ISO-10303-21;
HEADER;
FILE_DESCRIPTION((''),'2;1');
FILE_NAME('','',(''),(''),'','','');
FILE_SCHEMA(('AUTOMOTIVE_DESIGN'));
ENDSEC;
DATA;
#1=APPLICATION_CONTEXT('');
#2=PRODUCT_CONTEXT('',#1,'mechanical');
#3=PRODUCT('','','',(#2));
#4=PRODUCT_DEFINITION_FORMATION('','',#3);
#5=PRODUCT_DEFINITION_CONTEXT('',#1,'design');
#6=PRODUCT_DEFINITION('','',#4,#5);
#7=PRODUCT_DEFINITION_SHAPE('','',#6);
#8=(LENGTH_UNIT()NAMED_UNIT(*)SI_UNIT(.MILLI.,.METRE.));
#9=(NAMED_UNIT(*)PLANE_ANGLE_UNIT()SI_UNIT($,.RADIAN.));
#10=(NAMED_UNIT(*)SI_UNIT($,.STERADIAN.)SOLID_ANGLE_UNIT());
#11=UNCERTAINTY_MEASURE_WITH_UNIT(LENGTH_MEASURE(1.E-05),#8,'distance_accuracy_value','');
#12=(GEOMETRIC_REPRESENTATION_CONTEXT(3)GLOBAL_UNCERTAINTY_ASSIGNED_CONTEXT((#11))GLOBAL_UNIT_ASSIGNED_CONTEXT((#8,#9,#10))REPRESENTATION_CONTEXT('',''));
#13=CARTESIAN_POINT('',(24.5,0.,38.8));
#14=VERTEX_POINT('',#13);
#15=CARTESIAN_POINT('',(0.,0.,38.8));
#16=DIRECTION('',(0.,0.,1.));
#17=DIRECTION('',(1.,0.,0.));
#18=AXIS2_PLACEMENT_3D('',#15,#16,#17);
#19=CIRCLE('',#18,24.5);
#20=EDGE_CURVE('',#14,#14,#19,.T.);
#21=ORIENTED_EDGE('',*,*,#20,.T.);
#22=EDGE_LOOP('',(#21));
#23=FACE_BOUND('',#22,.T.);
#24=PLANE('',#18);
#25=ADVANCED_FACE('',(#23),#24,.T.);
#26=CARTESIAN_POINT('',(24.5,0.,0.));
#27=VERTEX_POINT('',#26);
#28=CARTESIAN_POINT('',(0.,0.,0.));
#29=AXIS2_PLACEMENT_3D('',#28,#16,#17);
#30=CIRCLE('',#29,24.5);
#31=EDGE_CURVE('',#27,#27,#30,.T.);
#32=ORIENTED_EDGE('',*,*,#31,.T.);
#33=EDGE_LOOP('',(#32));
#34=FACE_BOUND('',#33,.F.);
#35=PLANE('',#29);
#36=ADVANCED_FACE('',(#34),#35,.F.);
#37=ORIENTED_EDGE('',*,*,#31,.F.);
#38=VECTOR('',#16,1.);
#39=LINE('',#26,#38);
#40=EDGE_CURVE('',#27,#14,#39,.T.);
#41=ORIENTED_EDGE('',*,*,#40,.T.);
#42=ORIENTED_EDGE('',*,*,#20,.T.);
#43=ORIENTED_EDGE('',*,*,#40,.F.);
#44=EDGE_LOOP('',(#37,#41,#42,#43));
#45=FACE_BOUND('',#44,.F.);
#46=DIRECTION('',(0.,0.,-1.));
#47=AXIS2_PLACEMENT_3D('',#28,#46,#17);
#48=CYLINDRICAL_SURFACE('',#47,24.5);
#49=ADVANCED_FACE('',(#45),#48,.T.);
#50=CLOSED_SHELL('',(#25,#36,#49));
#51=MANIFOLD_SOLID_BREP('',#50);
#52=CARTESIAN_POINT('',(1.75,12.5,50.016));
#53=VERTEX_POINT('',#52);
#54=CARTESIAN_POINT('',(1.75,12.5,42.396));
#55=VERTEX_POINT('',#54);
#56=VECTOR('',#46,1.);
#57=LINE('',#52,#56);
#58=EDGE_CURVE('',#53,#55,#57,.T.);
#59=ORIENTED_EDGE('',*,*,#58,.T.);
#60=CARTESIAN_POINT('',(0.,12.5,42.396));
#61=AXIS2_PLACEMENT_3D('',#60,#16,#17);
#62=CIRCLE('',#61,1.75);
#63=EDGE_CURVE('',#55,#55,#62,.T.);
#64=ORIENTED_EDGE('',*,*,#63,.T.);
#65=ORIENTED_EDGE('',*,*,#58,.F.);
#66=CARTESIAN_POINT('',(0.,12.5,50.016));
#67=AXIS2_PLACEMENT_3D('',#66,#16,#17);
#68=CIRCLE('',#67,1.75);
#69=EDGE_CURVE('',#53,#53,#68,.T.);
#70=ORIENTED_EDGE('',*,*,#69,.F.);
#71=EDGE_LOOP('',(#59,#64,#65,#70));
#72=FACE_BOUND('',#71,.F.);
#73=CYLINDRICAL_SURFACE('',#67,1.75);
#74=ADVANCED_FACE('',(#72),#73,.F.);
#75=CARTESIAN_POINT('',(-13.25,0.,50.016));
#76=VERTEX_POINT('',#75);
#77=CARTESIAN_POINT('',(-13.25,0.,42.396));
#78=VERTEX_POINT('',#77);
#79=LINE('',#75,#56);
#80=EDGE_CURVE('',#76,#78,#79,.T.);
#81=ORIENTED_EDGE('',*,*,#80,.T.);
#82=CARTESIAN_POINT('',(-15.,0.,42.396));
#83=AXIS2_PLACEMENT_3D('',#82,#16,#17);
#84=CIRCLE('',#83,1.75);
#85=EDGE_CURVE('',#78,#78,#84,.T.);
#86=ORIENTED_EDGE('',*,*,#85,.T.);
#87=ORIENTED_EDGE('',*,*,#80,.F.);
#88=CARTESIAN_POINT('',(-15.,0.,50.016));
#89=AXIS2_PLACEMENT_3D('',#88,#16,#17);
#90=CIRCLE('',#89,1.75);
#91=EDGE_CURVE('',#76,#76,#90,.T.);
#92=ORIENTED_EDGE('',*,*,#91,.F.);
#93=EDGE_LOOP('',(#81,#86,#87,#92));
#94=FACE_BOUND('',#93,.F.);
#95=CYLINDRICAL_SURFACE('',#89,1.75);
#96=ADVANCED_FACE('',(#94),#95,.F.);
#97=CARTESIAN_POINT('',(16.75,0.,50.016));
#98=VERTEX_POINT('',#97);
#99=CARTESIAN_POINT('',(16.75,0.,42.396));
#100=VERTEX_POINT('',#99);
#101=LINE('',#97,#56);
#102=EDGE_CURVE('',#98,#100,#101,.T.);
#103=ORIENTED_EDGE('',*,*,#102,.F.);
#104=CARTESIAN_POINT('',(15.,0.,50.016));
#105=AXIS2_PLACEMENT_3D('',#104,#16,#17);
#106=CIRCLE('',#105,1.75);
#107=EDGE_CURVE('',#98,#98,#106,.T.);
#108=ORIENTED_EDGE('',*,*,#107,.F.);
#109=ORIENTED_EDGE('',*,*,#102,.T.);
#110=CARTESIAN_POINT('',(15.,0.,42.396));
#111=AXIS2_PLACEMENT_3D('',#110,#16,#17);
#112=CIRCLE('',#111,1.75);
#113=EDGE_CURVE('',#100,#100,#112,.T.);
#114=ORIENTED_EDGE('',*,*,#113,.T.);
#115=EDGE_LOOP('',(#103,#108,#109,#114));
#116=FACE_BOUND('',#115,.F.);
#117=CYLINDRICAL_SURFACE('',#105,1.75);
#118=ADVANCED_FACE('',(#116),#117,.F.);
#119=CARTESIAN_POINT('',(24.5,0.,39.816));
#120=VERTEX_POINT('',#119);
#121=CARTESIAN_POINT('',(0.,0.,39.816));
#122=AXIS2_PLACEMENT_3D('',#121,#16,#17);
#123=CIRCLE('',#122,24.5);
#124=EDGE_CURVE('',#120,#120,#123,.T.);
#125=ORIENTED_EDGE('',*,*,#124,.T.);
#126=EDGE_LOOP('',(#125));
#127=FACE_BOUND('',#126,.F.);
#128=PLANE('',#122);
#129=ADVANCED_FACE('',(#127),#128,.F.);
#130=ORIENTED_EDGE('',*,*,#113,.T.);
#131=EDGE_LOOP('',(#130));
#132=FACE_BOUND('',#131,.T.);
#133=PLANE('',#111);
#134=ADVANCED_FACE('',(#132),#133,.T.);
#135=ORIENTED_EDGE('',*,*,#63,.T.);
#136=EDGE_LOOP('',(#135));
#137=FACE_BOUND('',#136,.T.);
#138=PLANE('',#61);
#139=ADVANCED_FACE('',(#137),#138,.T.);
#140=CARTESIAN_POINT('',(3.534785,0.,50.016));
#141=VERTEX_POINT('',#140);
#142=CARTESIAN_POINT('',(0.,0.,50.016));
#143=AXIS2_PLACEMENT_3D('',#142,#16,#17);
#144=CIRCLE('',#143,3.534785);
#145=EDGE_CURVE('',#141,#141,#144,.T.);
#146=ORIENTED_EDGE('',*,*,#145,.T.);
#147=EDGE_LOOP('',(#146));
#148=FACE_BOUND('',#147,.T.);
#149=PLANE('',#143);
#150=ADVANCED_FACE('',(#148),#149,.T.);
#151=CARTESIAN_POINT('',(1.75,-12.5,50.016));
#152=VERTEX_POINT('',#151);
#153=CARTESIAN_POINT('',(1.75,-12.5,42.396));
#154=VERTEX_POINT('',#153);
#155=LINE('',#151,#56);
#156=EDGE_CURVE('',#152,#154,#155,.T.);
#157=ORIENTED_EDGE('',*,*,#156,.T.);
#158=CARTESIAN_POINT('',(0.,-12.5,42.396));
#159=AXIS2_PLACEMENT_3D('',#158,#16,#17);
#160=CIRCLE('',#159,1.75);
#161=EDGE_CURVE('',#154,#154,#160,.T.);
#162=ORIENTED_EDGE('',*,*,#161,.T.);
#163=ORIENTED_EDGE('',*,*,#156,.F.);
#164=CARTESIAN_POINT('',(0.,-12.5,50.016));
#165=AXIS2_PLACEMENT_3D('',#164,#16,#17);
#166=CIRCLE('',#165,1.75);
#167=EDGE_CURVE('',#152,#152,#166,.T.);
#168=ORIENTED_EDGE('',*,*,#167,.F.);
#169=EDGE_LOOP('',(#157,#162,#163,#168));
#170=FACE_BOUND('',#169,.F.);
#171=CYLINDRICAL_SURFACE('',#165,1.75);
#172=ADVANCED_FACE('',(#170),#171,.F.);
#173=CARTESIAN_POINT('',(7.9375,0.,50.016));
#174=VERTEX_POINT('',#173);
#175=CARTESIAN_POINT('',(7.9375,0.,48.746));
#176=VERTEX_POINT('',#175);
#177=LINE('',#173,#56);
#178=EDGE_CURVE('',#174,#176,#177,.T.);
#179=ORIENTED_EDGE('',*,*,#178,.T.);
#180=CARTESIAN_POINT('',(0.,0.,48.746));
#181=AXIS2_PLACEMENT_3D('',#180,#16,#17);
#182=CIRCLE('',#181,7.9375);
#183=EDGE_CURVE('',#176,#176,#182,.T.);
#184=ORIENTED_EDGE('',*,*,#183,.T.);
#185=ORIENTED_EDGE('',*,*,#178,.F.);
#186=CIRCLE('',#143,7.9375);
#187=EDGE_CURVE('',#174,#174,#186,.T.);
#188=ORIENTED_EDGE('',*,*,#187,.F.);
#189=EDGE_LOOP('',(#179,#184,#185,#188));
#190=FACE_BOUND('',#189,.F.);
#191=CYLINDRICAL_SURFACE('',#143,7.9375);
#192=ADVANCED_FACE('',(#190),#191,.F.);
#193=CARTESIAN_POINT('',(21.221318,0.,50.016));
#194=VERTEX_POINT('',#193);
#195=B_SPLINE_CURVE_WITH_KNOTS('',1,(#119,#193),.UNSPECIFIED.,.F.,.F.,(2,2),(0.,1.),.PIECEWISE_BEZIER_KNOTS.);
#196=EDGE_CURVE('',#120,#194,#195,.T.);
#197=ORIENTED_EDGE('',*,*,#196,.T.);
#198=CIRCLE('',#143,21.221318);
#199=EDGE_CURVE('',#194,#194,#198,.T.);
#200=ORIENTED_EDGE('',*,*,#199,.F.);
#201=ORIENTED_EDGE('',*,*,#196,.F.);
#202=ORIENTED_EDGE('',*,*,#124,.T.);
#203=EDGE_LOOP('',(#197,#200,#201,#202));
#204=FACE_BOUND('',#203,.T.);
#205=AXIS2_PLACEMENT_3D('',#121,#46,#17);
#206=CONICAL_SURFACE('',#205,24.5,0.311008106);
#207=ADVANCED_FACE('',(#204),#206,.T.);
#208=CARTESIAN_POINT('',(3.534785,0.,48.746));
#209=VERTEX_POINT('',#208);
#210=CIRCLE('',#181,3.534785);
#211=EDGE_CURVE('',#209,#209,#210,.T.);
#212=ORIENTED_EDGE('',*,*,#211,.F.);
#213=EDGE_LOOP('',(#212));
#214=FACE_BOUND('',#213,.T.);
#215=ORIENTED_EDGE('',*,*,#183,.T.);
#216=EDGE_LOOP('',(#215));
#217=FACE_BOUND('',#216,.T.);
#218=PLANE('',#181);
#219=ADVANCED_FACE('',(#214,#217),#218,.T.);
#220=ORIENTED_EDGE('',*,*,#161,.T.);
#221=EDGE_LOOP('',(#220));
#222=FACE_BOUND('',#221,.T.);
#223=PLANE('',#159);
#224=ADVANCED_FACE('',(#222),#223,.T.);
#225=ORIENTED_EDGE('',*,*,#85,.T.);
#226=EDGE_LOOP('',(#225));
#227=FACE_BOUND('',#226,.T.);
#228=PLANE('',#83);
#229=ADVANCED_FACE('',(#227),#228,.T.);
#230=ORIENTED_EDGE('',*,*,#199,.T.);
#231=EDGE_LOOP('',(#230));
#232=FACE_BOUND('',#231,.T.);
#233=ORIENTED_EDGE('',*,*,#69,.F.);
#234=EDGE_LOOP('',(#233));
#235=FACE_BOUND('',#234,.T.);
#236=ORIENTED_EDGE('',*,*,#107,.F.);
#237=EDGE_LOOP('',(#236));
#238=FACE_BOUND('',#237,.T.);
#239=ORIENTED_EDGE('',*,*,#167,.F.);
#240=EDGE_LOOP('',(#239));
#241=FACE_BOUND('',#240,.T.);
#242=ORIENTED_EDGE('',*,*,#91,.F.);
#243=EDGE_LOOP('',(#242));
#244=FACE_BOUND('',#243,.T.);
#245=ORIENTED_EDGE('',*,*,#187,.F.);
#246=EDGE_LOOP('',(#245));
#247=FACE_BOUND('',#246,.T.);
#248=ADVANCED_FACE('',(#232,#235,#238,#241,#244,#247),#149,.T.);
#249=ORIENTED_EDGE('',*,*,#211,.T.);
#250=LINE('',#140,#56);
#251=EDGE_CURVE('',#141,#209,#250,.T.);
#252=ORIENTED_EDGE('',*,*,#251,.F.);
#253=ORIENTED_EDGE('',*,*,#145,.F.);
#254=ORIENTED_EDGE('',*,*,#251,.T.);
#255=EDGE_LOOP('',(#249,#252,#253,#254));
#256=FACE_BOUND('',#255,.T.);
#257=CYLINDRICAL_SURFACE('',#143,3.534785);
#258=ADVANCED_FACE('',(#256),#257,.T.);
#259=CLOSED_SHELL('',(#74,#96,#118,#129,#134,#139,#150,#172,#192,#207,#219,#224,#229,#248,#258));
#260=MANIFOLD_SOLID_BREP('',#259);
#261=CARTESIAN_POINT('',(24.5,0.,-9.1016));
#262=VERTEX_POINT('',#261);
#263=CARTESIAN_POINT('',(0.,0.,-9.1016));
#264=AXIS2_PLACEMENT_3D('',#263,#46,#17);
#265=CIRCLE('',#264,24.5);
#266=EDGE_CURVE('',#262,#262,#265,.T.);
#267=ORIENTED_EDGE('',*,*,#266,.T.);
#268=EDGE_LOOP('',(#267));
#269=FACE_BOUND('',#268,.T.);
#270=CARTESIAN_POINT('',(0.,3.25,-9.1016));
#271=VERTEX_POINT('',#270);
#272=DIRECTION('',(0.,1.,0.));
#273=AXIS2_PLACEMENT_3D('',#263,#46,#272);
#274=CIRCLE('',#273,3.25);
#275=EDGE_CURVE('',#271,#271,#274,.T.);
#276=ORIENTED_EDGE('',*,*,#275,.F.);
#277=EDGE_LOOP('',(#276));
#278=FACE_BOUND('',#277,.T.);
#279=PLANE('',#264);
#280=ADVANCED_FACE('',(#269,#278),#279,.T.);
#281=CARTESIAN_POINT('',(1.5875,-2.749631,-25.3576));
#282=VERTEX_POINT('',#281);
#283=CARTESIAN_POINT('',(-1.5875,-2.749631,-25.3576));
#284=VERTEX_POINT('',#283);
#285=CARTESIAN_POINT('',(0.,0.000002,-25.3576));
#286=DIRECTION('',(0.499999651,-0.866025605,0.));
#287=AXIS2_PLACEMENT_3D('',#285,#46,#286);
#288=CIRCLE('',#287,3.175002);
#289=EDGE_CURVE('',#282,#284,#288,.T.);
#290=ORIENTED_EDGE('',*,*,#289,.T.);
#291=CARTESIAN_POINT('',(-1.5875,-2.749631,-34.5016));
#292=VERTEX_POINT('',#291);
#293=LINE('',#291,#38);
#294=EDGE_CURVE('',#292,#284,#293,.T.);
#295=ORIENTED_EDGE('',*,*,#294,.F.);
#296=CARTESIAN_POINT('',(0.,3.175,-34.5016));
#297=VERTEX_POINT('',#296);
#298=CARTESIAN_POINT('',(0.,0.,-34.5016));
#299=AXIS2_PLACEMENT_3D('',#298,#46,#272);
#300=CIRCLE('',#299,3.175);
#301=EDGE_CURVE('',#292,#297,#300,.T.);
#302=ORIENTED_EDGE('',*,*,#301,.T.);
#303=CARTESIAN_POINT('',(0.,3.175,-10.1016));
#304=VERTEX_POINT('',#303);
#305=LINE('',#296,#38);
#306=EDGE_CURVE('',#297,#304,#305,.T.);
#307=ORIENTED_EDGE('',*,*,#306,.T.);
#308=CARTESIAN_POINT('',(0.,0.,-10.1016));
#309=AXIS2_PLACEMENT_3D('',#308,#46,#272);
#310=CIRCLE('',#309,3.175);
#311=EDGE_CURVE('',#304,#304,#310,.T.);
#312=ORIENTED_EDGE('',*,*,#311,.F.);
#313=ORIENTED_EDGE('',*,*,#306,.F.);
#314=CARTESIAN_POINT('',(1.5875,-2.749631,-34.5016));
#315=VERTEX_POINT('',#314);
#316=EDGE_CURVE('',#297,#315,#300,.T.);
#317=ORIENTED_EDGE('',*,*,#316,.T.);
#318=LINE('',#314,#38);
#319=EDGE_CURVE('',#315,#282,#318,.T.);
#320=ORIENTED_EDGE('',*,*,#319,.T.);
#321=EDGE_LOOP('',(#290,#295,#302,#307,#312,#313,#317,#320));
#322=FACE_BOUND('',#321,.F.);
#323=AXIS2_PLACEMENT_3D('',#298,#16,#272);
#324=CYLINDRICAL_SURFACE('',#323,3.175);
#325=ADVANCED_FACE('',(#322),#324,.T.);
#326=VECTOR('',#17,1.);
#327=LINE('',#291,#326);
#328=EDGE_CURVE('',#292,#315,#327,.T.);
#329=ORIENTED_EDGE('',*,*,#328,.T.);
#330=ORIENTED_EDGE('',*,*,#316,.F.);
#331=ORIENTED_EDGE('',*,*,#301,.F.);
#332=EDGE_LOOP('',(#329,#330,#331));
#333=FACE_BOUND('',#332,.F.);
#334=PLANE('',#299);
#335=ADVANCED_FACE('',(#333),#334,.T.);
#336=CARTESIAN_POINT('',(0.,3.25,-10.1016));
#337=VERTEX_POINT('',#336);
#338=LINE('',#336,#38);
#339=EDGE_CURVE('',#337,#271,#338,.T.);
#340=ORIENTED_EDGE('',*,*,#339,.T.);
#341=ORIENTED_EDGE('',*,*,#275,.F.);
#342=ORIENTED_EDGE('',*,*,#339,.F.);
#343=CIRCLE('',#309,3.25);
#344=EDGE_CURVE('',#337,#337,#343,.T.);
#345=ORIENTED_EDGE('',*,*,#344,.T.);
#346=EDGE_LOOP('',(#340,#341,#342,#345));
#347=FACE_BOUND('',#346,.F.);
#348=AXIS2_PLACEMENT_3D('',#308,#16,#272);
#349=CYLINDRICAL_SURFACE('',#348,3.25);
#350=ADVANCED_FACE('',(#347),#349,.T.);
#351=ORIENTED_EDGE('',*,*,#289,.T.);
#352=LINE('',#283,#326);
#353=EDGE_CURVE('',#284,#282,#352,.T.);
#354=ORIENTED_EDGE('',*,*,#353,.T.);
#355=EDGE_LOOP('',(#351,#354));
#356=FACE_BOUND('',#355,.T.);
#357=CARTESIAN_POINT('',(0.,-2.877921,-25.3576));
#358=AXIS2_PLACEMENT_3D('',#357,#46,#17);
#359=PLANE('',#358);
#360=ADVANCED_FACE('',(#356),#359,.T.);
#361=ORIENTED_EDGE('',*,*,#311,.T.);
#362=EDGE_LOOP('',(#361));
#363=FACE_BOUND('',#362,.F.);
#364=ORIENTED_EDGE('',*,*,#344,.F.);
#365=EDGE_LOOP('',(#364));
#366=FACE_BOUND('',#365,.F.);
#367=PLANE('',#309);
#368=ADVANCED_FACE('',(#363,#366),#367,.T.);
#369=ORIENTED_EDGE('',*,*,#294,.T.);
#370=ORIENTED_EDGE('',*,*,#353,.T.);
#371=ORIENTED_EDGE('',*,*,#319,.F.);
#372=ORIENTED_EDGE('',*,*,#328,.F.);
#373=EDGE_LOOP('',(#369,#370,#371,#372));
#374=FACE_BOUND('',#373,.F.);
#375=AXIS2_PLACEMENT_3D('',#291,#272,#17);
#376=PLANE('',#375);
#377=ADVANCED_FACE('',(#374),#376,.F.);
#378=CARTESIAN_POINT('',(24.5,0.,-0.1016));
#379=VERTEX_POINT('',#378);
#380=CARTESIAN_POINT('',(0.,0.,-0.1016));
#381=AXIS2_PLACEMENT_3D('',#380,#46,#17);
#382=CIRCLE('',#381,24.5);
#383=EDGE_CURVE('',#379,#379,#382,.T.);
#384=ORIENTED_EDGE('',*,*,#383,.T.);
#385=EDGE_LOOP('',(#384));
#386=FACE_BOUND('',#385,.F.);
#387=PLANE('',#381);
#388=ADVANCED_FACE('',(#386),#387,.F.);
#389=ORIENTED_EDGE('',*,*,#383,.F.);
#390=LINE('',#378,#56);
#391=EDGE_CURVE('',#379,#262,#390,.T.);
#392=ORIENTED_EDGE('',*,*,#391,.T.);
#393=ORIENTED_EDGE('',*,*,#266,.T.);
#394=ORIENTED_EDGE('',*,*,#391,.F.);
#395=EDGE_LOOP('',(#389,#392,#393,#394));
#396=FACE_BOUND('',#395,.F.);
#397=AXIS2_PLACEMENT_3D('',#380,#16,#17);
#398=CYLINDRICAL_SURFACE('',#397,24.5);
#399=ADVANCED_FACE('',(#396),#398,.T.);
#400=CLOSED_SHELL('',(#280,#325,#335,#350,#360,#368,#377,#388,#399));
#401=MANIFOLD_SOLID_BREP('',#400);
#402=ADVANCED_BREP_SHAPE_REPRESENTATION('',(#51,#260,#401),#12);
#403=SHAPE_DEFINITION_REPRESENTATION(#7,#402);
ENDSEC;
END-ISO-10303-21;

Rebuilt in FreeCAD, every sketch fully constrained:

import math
import FreeCAD as App
import Part
import Sketcher
from FreeCAD import Vector
Q = App.Units.Quantity

doc = App.newDocument("Part")
body = doc.addObject("PartDesign::Body", "Body")

sketch1 = body.newObject("Sketcher::SketchObject", "Sketch")
sketch1.AttachmentSupport = (doc.getObject("XY_Plane"), [""])
sketch1.MapMode = "FlatFace"
sketch1.addGeometry(Part.Circle(Vector(0, 0, 0), Vector(0, 0, 1), 24), False)
sketch1.addConstraint([
    Sketcher.Constraint("Coincident", 0, 3, -1, 1),
    Sketcher.Constraint("Diameter", 0, Q("49 mm")),
])
pad1 = body.newObject("PartDesign::Pad", "Pad")
pad1.Profile = sketch1
pad1.Length = 38.8
body2 = doc.addObject("PartDesign::Body", "Body001")

sketch2 = body2.newObject("Sketcher::SketchObject", "Sketch001")
sketch2.AttachmentSupport = (doc.getObject("XY_Plane001"), [""])
sketch2.MapMode = "FlatFace"
sketch2.AttachmentOffset = App.Placement(Vector(0, 0, -0.004 * 25.4), App.Rotation())
sketch2.addGeometry(Part.Circle(Vector(0, 0, 0), Vector(0, 0, 1), 24), False)
sketch2.addConstraint([
    Sketcher.Constraint("Coincident", 0, 3, -1, 1),
    Sketcher.Constraint("Diameter", 0, Q("49 mm")),
])
pad2 = body2.newObject("PartDesign::Pad", "Pad001")
pad2.Profile = sketch2
pad2.Length = 9
pad2.Reversed = True

sketch3 = body2.newObject("Sketcher::SketchObject", "Sketch002")
sketch3.AttachmentSupport = (doc.getObject("YZ_Plane001"), [""])
sketch3.MapMode = "FlatFace"
sketch3.addGeometry([
    Part.LineSegment(Vector(3.25, -9.1, 0), Vector(0, -9.1, 0)),
    Part.LineSegment(Vector(0, -9.1, 0), Vector(0, -34.5, 0)),
    Part.LineSegment(Vector(0, -34.5, 0), Vector(3.17, -34.5, 0)),
    Part.LineSegment(Vector(3.17, -34.5, 0), Vector(3.17, -10.1, 0)),
    Part.LineSegment(Vector(3.17, -10.1, 0), Vector(3.25, -10.1, 0)),
    Part.LineSegment(Vector(3.25, -10.1, 0), Vector(3.25, -9.1, 0)),
], False)
sketch3.addConstraint([
    Sketcher.Constraint("Coincident", 0, 2, 1, 1),
    Sketcher.Constraint("Coincident", 1, 2, 2, 1),
    Sketcher.Constraint("Coincident", 2, 2, 3, 1),
    Sketcher.Constraint("Coincident", 3, 2, 4, 1),
    Sketcher.Constraint("Coincident", 4, 2, 5, 1),
    Sketcher.Constraint("Coincident", 5, 2, 0, 1),
    Sketcher.Constraint("Horizontal", 0),
    Sketcher.Constraint("Vertical", 1),
    Sketcher.Constraint("Horizontal", 2),
    Sketcher.Constraint("Vertical", 3),
    Sketcher.Constraint("Horizontal", 4),
    Sketcher.Constraint("Vertical", 5),
    Sketcher.Constraint("PointOnObject", 0, 2, -2),
    Sketcher.Constraint("DistanceY", 1, 2, 1, 1, Q("1 in")),
    Sketcher.Constraint("DistanceX", 2, 1, 2, 2, Q("0.125 in")),
    Sketcher.Constraint("DistanceX", 0, 2, 0, 1, Q("3.25 mm")),
    Sketcher.Constraint("DistanceY", 3, 1, 3, 2, Q("24.4 mm")),
    Sketcher.Constraint("DistanceY", 0, 2, -1, 1, Q("9.1016 mm")),
])
revolution = body2.newObject("PartDesign::Revolution", "Revolution")
revolution.Profile = sketch3
revolution.ReferenceAxis = (sketch3, ["V_Axis"])
revolution.Angle = 360

sketch4 = body2.newObject("Sketcher::SketchObject", "Sketch003")
sketch4.AttachmentSupport = (doc.getObject("XY_Plane001"), [""])
sketch4.MapMode = "FlatFace"
sketch4.AttachmentOffset = App.Placement(Vector(0, 0, -34.5016), App.Rotation())
sketch4.addGeometry([
    Part.ArcOfCircle(Part.Circle(Vector(0, 0, 0), Vector(0, 0, 1), 3.2), math.radians(-120), math.radians(-60)),
    Part.LineSegment(Vector(-1.6, -2.7, 0), Vector(1.6, -2.7, 0)),
], False)
sketch4.addConstraint([
    Sketcher.Constraint("Coincident", 0, 1, 1, 1),
    Sketcher.Constraint("Coincident", 1, 2, 0, 2),
    Sketcher.Constraint("Horizontal", 1),
    Sketcher.Constraint("Coincident", 0, 3, -1, 1),
    Sketcher.Constraint("Radius", 0, Q("0.1250001 in")),
    Sketcher.Constraint("DistanceX", 1, 1, 1, 2, Q("0.125 in")),
])
pocket1 = body2.newObject("PartDesign::Pocket", "Pocket")
pocket1.Profile = sketch4
pocket1.Length = Q("0.36 in")
pocket1.Reversed = True
body3 = doc.addObject("PartDesign::Body", "Body002")

sketch5 = body3.newObject("Sketcher::SketchObject", "Sketch004")
sketch5.AttachmentSupport = (doc.getObject("XY_Plane002"), [""])
sketch5.MapMode = "FlatFace"
sketch5.AttachmentOffset = App.Placement(Vector(0, 0, 39.816), App.Rotation())
sketch5.addGeometry(Part.Circle(Vector(0, 0, 0), Vector(0, 0, 1), 24), False)
sketch5.addConstraint([
    Sketcher.Constraint("Coincident", 0, 3, -1, 1),
    Sketcher.Constraint("Diameter", 0, Q("49 mm")),
])

sketch6 = body3.newObject("Sketcher::SketchObject", "Sketch005")
sketch6.AttachmentSupport = (doc.getObject("XY_Plane002"), [""])
sketch6.MapMode = "FlatFace"
sketch6.AttachmentOffset = App.Placement(Vector(0, 0, 50.016), App.Rotation())
sketch6.addGeometry(Part.Circle(Vector(0, 0, 0), Vector(0, 0, 1), 21), False)
sketch6.addConstraint([
    Sketcher.Constraint("Coincident", 0, 3, -1, 1),
    Sketcher.Constraint("Diameter", 0, Q("42.442636 mm")),
])

additiveloft = body3.newObject("PartDesign::AdditiveLoft", "AdditiveLoft")
additiveloft.Profile = sketch5
additiveloft.Sections = [sketch6]

sketch7 = body3.newObject("Sketcher::SketchObject", "Sketch006")
sketch7.AttachmentSupport = (doc.getObject("XY_Plane002"), [""])
sketch7.MapMode = "FlatFace"
sketch7.AttachmentOffset = App.Placement(Vector(0, 0, 50.016), App.Rotation())
sketch7.addGeometry([
    Part.Circle(Vector(0, 0, 0), Vector(0, 0, 1), 7.9),
    Part.Circle(Vector(0, 0, 0), Vector(0, 0, 1), 3.5),
], False)
sketch7.addConstraint([
    Sketcher.Constraint("Coincident", 0, 3, -1, 1),
    Sketcher.Constraint("Coincident", 1, 3, -1, 1),
    Sketcher.Constraint("Diameter", 0, Q("0.625 in")),
    Sketcher.Constraint("Diameter", 1, Q("7.06957 mm")),
])
pocket2 = body3.newObject("PartDesign::Pocket", "Pocket001")
pocket2.Profile = sketch7
pocket2.Length = Q("0.05 in")

sketch8 = body3.newObject("Sketcher::SketchObject", "Sketch007")
sketch8.AttachmentSupport = (doc.getObject("XY_Plane002"), [""])
sketch8.MapMode = "FlatFace"
sketch8.AttachmentOffset = App.Placement(Vector(0, 0, 50.016), App.Rotation())
sketch8.addGeometry([
    Part.Circle(Vector(0, 12.5, 0), Vector(0, 0, 1), 1.8),
    Part.Circle(Vector(0, -12.5, 0), Vector(0, 0, 1), 1.8),
    Part.Circle(Vector(15, 0, 0), Vector(0, 0, 1), 1.8),
    Part.Circle(Vector(-15, 0, 0), Vector(0, 0, 1), 1.8),
], False)
sketch8.addConstraint([
    Sketcher.Constraint("Equal", 0, 1),
    Sketcher.Constraint("Equal", 1, 2),
    Sketcher.Constraint("Equal", 2, 3),
    Sketcher.Constraint("Symmetric", 0, 3, 1, 3, -1, 1),
    Sketcher.Constraint("Symmetric", 2, 3, 3, 3, -1, 1),
    Sketcher.Constraint("PointOnObject", 0, 3, -2),
    Sketcher.Constraint("PointOnObject", 2, 3, -1),
    Sketcher.Constraint("Diameter", 0, Q("3.5 mm")),
    Sketcher.Constraint("DistanceY", -1, 1, 0, 3, Q("12.5 mm")),
    Sketcher.Constraint("DistanceX", -1, 1, 2, 3, Q("15 mm")),
])
pocket3 = body3.newObject("PartDesign::Pocket", "Pocket002")
pocket3.Profile = sketch8
pocket3.Length = Q("0.3 in")

doc.recompute()
